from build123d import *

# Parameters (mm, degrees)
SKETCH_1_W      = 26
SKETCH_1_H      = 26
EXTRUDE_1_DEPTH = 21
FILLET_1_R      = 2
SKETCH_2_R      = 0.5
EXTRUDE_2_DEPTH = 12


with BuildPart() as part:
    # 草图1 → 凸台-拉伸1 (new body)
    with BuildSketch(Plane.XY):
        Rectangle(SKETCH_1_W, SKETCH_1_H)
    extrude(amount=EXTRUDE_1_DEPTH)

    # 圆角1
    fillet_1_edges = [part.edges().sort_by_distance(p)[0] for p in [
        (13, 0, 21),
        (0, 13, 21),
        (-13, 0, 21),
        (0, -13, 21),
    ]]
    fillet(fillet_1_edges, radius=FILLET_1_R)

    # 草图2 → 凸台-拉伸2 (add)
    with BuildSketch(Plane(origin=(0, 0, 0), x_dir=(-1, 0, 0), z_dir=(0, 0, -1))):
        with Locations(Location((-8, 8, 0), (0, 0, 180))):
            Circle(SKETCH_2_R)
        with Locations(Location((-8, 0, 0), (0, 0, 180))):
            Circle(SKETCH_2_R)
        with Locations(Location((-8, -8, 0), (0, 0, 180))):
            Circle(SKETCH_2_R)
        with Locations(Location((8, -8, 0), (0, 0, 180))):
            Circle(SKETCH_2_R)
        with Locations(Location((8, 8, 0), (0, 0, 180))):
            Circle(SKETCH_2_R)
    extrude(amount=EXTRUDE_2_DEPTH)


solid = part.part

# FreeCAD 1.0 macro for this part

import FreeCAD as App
import Part
import Sketcher


def edges_at(feature, points):
    """Names of the edges that pass closest to the given points."""
    edges = feature.Shape.Edges
    near = lambda p: min(range(len(edges)), key=lambda i: edges[i].distToShape(Part.Vertex(*p))[0])
    return sorted({f"Edge{near(p) + 1}" for p in points})


def add_polygon(sketch, points):
    """Adds a closed chain of lines whose ends are joined by coincident constraints."""
    first, n = sketch.GeometryCount, len(points)
    for a, b in zip(points, points[1:] + points[:1]):
        sketch.addGeometry(Part.LineSegment(App.Vector(*a, 0), App.Vector(*b, 0)), False)
    for i in range(n):
        sketch.addConstraint(Sketcher.Constraint("Coincident", first + i, 2, first + (i + 1) % n, 1))

doc = App.newDocument("Part")
body = doc.addObject("PartDesign::Body", "Body")

# Sketch on XY plane
sketch1 = body.newObject("Sketcher::SketchObject", "Sketch")
sketch1.AttachmentSupport = (doc.getObject("XY_Plane"), [""])
sketch1.MapMode = "FlatFace"
add_polygon(sketch1, [(-13, 13), (-13, -13), (13, -13), (13, 13)])  # lines 0-3
sketch1.addConstraint(Sketcher.Constraint("Vertical", 0))
sketch1.addConstraint(Sketcher.Constraint("Horizontal", 1))
sketch1.addConstraint(Sketcher.Constraint("Vertical", 2))
sketch1.addConstraint(Sketcher.Constraint("Horizontal", 3))
sketch1.addConstraint(Sketcher.Constraint("Symmetric", 0, 2, 2, 2, -1, 1))
sketch1.addConstraint(Sketcher.Constraint("Equal", 3, 0))
sketch1.addConstraint(Sketcher.Constraint("DistanceX", 1, 1, 1, 2, 26.0))
pad1 = body.newObject("PartDesign::Pad", "Pad")
pad1.Profile = sketch1
pad1.Length = 21
doc.recompute()

fillet = body.newObject("PartDesign::Fillet", "Fillet")
fillet.Base = (pad1, edges_at(pad1, [
    (13, 0, 21),
    (0, 13, 21),
    (-13, 0, 21),
    (0, -13, 21),
]))
fillet.Radius = 2

# Sketch on XY plane
sketch2 = body.newObject("Sketcher::SketchObject", "Sketch001")
sketch2.AttachmentSupport = (doc.getObject("XY_Plane"), [""])
sketch2.MapMode = "FlatFace"
sketch2.addGeometry(Part.Circle(App.Vector(8, 8, 0), App.Vector(0, 0, 1), 0.5), False)
sketch2.addGeometry(Part.Circle(App.Vector(8, 0, 0), App.Vector(0, 0, 1), 0.5), False)
sketch2.addGeometry(Part.Circle(App.Vector(8, -8, 0), App.Vector(0, 0, 1), 0.5), False)
sketch2.addGeometry(Part.Circle(App.Vector(-8, -8, 0), App.Vector(0, 0, 1), 0.5), False)
sketch2.addGeometry(Part.Circle(App.Vector(-8, 8, 0), App.Vector(0, 0, 1), 0.5), False)
sketch2.addConstraint(Sketcher.Constraint("Equal", 0, 1))
sketch2.addConstraint(Sketcher.Constraint("Equal", 1, 2))
sketch2.addConstraint(Sketcher.Constraint("Equal", 2, 3))
sketch2.addConstraint(Sketcher.Constraint("Equal", 3, 4))
sketch2.addConstraint(Sketcher.Constraint("Symmetric", 0, 3, 3, 3, -1, 1))
sketch2.addConstraint(Sketcher.Constraint("Symmetric", 2, 3, 4, 3, -1, 1))
sketch2.addConstraint(Sketcher.Constraint("Symmetric", 2, 3, 3, 3, -2))
sketch2.addConstraint(Sketcher.Constraint("PointOnObject", 1, 3, -1))
sketch2.addConstraint(Sketcher.Constraint("Vertical", 0, 3, 1, 3))
sketch2.addConstraint(Sketcher.Constraint("Diameter", 0, 1.0))
sketch2.addConstraint(Sketcher.Constraint("DistanceX", -1, 1, 0, 3, 8.0))
sketch2.addConstraint(Sketcher.Constraint("DistanceY", -1, 1, 0, 3, 8.0))
pad2 = body.newObject("PartDesign::Pad", "Pad001")
pad2.Profile = sketch2
pad2.Length = 12
pad2.Reversed = True

doc.recompute()
